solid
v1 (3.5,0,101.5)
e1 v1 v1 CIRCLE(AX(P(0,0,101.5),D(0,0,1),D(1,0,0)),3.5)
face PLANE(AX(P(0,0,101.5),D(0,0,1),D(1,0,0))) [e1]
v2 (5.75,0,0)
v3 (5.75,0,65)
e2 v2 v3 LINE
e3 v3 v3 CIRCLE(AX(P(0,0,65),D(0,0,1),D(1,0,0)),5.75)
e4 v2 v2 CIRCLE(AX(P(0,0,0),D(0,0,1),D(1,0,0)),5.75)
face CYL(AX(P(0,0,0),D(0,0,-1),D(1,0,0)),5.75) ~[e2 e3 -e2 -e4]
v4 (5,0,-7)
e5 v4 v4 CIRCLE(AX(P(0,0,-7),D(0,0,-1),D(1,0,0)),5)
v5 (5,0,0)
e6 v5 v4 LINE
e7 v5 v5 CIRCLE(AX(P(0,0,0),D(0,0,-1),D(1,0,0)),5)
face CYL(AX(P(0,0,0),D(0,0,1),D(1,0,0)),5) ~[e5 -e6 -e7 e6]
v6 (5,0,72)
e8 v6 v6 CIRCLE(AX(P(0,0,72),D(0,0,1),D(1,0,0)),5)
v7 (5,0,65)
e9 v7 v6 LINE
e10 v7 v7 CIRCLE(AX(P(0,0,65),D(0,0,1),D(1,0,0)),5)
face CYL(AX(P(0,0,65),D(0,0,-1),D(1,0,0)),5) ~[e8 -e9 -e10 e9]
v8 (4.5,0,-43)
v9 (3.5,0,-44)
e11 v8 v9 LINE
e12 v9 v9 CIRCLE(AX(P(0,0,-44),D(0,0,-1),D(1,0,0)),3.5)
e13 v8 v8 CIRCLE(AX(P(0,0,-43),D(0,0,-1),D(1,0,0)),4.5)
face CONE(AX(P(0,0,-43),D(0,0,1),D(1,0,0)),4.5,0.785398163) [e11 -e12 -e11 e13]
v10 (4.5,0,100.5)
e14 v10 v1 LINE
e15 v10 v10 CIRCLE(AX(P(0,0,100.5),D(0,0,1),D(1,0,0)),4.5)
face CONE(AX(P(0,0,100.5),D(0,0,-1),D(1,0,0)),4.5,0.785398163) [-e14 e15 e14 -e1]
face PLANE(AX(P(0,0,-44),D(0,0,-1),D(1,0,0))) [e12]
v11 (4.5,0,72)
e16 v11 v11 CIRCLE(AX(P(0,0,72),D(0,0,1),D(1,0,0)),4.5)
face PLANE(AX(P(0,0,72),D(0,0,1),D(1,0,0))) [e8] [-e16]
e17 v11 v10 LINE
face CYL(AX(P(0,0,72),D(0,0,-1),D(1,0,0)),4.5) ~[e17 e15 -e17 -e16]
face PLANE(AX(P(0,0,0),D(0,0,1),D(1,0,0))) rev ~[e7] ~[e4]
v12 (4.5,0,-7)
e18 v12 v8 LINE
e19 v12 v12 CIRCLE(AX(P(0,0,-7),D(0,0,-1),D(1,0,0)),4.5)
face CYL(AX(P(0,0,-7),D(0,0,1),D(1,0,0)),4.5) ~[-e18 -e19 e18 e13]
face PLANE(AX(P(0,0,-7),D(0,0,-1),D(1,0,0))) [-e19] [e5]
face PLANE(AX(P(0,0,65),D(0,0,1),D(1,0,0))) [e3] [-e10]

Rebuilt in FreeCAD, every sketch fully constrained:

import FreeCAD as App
import Part
import Sketcher

V = App.Vector


def edges_at(feature, points):
    """Names of the edges that pass closest to the given points."""
    edges = feature.Shape.Edges
    near = lambda p: min(range(len(edges)), key=lambda i: edges[i].distToShape(Part.Vertex(*p))[0])
    return sorted({f"Edge{near(p) + 1}" for p in points})

doc = App.newDocument("Part")
params = doc.addObject("Spreadsheet::Sheet", "Params")
for row, (alias, value) in enumerate([
    ("sketch1_diameter", "11.5 mm"),
    ("pad1_length", "65 mm"),
    ("sketch2_diameter", "10 mm"),
    ("pad2_length", "7 mm"),
    ("sketch3_diameter", "9 mm"),
    ("pad3_length", "29.5 mm"),
    ("sketch4_diameter", "10 mm"),
    ("pad4_length", "7 mm"),
    ("sketch5_diameter", "9 mm"),
    ("pad5_length", "37 mm"),
    ("chamfer_size", "1 mm"),
], start=1):
    params.set(f"A{row}", alias)
    params.set(f"B{row}", "=" + value)
    params.setAlias(f"B{row}", alias)

body = doc.addObject("PartDesign::Body", "Body")

# Sketch on XY plane
sketch1 = body.newObject("Sketcher::SketchObject", "Sketch")
sketch1.AttachmentSupport = (doc.getObject("XY_Plane"), [""])
sketch1.MapMode = "FlatFace"
sketch1.addGeometry(Part.Circle(V(0, 0, 0), V(0, 0, 1), 6), False)
sketch1.addConstraint([
    Sketcher.Constraint("Coincident", 0, 3, -1, 1),
    Sketcher.Constraint("Diameter", 0, 11.5),
])
sketch1.setExpression("Constraints[1]", "Params.sketch1_diameter")
pad1 = body.newObject("PartDesign::Pad", "Pad")
pad1.Profile = sketch1
pad1.setExpression("Length", "Params.pad1_length")

# Sketch on XY plane
sketch2 = body.newObject("Sketcher::SketchObject", "Sketch001")
sketch2.AttachmentSupport = (doc.getObject("XY_Plane"), [""])
sketch2.MapMode = "FlatFace"
sketch2.AttachmentOffset = App.Placement(V(0, 0, 65), App.Rotation())
sketch2.addGeometry(Part.Circle(V(0, 0, 0), V(0, 0, 1), 5), False)
sketch2.addConstraint([
    Sketcher.Constraint("Coincident", 0, 3, -1, 1),
    Sketcher.Constraint("Diameter", 0, 10.0),
])
sketch2.setExpression("Constraints[1]", "Params.sketch2_diameter")
pad2 = body.newObject("PartDesign::Pad", "Pad001")
pad2.Profile = sketch2
pad2.setExpression("Length", "Params.pad2_length")

# Sketch on XY plane
sketch3 = body.newObject("Sketcher::SketchObject", "Sketch002")
sketch3.AttachmentSupport = (doc.getObject("XY_Plane"), [""])
sketch3.MapMode = "FlatFace"
sketch3.AttachmentOffset = App.Placement(V(0, 0, 72), App.Rotation())
sketch3.addGeometry(Part.Circle(V(0, 0, 0), V(0, 0, 1), 4.5), False)
sketch3.addConstraint([
    Sketcher.Constraint("Coincident", 0, 3, -1, 1),
    Sketcher.Constraint("Diameter", 0, 9.0),
])
sketch3.setExpression("Constraints[1]", "Params.sketch3_diameter")
pad3 = body.newObject("PartDesign::Pad", "Pad002")
pad3.Profile = sketch3
pad3.setExpression("Length", "Params.pad3_length")

# Sketch on XY plane
sketch4 = body.newObject("Sketcher::SketchObject", "Sketch003")
sketch4.AttachmentSupport = (doc.getObject("XY_Plane"), [""])
sketch4.MapMode = "FlatFace"
sketch4.addGeometry(Part.Circle(V(0, 0, 0), V(0, 0, 1), 5), False)
sketch4.addConstraint([
    Sketcher.Constraint("Coincident", 0, 3, -1, 1),
    Sketcher.Constraint("Diameter", 0, 10.0),
])
sketch4.setExpression("Constraints[1]", "Params.sketch4_diameter")
pad4 = body.newObject("PartDesign::Pad", "Pad003")
pad4.Profile = sketch4
pad4.setExpression("Length", "Params.pad4_length")
pad4.Reversed = True

# Sketch on XY plane
sketch5 = body.newObject("Sketcher::SketchObject", "Sketch004")
sketch5.AttachmentSupport = (doc.getObject("XY_Plane"), [""])
sketch5.MapMode = "FlatFace"
sketch5.AttachmentOffset = App.Placement(V(0, 0, -7), App.Rotation())
sketch5.addGeometry(Part.Circle(V(0, 0, 0), V(0, 0, 1), 4.5), False)
sketch5.addConstraint([
    Sketcher.Constraint("Coincident", 0, 3, -1, 1),
    Sketcher.Constraint("Diameter", 0, 9.0),
])
sketch5.setExpression("Constraints[1]", "Params.sketch5_diameter")
pad5 = body.newObject("PartDesign::Pad", "Pad004")
pad5.Profile = sketch5
pad5.setExpression("Length", "Params.pad5_length")
pad5.Reversed = True
doc.recompute()

chamfer = body.newObject("PartDesign::Chamfer", "Chamfer")
chamfer.Base = (pad5, edges_at(pad5, [(-4.5, 0, -44), (-4.5, 0, 101.5)]))
chamfer.setExpression("Size", "Params.chamfer_size")

doc.recompute()
